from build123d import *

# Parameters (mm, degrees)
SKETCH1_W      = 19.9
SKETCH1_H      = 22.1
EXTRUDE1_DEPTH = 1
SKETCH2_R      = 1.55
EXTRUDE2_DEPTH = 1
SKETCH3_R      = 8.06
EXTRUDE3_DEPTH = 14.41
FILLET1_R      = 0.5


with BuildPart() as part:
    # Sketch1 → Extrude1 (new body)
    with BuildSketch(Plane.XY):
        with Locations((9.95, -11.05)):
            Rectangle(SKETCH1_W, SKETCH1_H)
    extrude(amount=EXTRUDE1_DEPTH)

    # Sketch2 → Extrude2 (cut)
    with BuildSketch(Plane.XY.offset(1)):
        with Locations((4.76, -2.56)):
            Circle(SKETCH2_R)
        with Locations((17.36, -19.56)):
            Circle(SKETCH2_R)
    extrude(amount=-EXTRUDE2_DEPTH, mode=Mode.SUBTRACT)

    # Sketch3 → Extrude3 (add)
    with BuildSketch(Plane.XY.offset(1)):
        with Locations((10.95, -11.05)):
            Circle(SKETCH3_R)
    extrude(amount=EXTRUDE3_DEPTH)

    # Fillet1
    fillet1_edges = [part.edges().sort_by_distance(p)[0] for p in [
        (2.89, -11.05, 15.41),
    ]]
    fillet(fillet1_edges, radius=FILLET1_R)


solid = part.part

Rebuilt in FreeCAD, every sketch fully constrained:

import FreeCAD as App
import Part
import Sketcher

V = App.Vector
Q = App.Units.Quantity


def edges_at(feature, points):
    """Names of the edges that pass closest to the given points."""
    edges = feature.Shape.Edges
    near = lambda p: min(range(len(edges)), key=lambda i: edges[i].distToShape(Part.Vertex(*p))[0])
    return sorted({f"Edge{near(p) + 1}" for p in points})


def add_polygon(sketch, points):
    """Adds a closed chain of lines whose ends are joined by coincident constraints."""
    first, n = sketch.GeometryCount, len(points)
    for a, b in zip(points, points[1:] + points[:1]):
        sketch.addGeometry(Part.LineSegment(App.Vector(*a, 0), App.Vector(*b, 0)), False)
    for i in range(n):
        sketch.addConstraint(Sketcher.Constraint("Coincident", first + i, 2, first + (i + 1) % n, 1))

doc = App.newDocument("Part")
body = doc.addObject("PartDesign::Body", "Body")

# Sketch on XY plane
sketch1 = body.newObject("Sketcher::SketchObject", "Sketch")
sketch1.AttachmentSupport = (doc.getObject("XY_Plane"), [""])
sketch1.MapMode = "FlatFace"
add_polygon(sketch1, [(0, 0), (0, -22.1), (19.9, -22.1), (19.9, 0)])  # lines 0-3
sketch1.addConstraint(Sketcher.Constraint("Vertical", 0))
sketch1.addConstraint(Sketcher.Constraint("Horizontal", 1))
sketch1.addConstraint(Sketcher.Constraint("Vertical", 2))
sketch1.addConstraint(Sketcher.Constraint("Horizontal", 3))
sketch1.addConstraint(Sketcher.Constraint("Coincident", 3, 2, -1, 1))
sketch1.addConstraint(Sketcher.Constraint("DistanceX", 1, 1, 1, 2, Q("19.9 mm")))
sketch1.addConstraint(Sketcher.Constraint("DistanceY", 0, 2, 0, 1, Q("22.1 mm")))
pad1 = body.newObject("PartDesign::Pad", "Pad")
pad1.Profile = sketch1
pad1.Length = 1

# Sketch on XY plane
sketch2 = body.newObject("Sketcher::SketchObject", "Sketch001")
sketch2.AttachmentSupport = (doc.getObject("XY_Plane"), [""])
sketch2.MapMode = "FlatFace"
sketch2.AttachmentOffset = App.Placement(V(0, 0, 1), App.Rotation())
sketch2.addGeometry(Part.Circle(V(4.76, -2.56, 0), V(0, 0, 1), 1.55), False)
sketch2.addGeometry(Part.Circle(V(17.36, -19.56, 0), V(0, 0, 1), 1.55), False)
sketch2.addConstraint(Sketcher.Constraint("Equal", 0, 1))
sketch2.addConstraint(Sketcher.Constraint("Diameter", 0, Q("3.1 mm")))
sketch2.addConstraint(Sketcher.Constraint("DistanceY", 1, 3, 0, 3, Q("17 mm")))
sketch2.addConstraint(Sketcher.Constraint("DistanceX", 0, 3, 1, 3, Q("12.6 mm")))
sketch2.addConstraint(Sketcher.Constraint("DistanceX", -1, 1, 0, 3, Q("4.76 mm")))
sketch2.addConstraint(Sketcher.Constraint("DistanceY", 0, 3, -1, 1, Q("2.56 mm")))
pocket1 = body.newObject("PartDesign::Pocket", "Pocket")
pocket1.Profile = sketch2
pocket1.Length = 1

# Sketch on XY plane
sketch3 = body.newObject("Sketcher::SketchObject", "Sketch002")
sketch3.AttachmentSupport = (doc.getObject("XY_Plane"), [""])
sketch3.MapMode = "FlatFace"
sketch3.AttachmentOffset = App.Placement(V(0, 0, 1), App.Rotation())
sketch3.addGeometry(Part.Circle(V(10.95, -11.05, 0), V(0, 0, 1), 8.06), False)
sketch3.addConstraint(Sketcher.Constraint("Diameter", 0, Q("16.12 mm")))
sketch3.addConstraint(Sketcher.Constraint("DistanceX", -1, 1, 0, 3, Q("10.95 mm")))
sketch3.addConstraint(Sketcher.Constraint("DistanceY", 0, 3, -1, 1, Q("11.05 mm")))
pad2 = body.newObject("PartDesign::Pad", "Pad001")
pad2.Profile = sketch3
pad2.Length = 14.41
doc.recompute()

fillet = body.newObject("PartDesign::Fillet", "Fillet")
fillet.Base = (pad2, edges_at(pad2, [(2.89, -11.05, 15.41)]))
fillet.Radius = 0.5

doc.recompute()
